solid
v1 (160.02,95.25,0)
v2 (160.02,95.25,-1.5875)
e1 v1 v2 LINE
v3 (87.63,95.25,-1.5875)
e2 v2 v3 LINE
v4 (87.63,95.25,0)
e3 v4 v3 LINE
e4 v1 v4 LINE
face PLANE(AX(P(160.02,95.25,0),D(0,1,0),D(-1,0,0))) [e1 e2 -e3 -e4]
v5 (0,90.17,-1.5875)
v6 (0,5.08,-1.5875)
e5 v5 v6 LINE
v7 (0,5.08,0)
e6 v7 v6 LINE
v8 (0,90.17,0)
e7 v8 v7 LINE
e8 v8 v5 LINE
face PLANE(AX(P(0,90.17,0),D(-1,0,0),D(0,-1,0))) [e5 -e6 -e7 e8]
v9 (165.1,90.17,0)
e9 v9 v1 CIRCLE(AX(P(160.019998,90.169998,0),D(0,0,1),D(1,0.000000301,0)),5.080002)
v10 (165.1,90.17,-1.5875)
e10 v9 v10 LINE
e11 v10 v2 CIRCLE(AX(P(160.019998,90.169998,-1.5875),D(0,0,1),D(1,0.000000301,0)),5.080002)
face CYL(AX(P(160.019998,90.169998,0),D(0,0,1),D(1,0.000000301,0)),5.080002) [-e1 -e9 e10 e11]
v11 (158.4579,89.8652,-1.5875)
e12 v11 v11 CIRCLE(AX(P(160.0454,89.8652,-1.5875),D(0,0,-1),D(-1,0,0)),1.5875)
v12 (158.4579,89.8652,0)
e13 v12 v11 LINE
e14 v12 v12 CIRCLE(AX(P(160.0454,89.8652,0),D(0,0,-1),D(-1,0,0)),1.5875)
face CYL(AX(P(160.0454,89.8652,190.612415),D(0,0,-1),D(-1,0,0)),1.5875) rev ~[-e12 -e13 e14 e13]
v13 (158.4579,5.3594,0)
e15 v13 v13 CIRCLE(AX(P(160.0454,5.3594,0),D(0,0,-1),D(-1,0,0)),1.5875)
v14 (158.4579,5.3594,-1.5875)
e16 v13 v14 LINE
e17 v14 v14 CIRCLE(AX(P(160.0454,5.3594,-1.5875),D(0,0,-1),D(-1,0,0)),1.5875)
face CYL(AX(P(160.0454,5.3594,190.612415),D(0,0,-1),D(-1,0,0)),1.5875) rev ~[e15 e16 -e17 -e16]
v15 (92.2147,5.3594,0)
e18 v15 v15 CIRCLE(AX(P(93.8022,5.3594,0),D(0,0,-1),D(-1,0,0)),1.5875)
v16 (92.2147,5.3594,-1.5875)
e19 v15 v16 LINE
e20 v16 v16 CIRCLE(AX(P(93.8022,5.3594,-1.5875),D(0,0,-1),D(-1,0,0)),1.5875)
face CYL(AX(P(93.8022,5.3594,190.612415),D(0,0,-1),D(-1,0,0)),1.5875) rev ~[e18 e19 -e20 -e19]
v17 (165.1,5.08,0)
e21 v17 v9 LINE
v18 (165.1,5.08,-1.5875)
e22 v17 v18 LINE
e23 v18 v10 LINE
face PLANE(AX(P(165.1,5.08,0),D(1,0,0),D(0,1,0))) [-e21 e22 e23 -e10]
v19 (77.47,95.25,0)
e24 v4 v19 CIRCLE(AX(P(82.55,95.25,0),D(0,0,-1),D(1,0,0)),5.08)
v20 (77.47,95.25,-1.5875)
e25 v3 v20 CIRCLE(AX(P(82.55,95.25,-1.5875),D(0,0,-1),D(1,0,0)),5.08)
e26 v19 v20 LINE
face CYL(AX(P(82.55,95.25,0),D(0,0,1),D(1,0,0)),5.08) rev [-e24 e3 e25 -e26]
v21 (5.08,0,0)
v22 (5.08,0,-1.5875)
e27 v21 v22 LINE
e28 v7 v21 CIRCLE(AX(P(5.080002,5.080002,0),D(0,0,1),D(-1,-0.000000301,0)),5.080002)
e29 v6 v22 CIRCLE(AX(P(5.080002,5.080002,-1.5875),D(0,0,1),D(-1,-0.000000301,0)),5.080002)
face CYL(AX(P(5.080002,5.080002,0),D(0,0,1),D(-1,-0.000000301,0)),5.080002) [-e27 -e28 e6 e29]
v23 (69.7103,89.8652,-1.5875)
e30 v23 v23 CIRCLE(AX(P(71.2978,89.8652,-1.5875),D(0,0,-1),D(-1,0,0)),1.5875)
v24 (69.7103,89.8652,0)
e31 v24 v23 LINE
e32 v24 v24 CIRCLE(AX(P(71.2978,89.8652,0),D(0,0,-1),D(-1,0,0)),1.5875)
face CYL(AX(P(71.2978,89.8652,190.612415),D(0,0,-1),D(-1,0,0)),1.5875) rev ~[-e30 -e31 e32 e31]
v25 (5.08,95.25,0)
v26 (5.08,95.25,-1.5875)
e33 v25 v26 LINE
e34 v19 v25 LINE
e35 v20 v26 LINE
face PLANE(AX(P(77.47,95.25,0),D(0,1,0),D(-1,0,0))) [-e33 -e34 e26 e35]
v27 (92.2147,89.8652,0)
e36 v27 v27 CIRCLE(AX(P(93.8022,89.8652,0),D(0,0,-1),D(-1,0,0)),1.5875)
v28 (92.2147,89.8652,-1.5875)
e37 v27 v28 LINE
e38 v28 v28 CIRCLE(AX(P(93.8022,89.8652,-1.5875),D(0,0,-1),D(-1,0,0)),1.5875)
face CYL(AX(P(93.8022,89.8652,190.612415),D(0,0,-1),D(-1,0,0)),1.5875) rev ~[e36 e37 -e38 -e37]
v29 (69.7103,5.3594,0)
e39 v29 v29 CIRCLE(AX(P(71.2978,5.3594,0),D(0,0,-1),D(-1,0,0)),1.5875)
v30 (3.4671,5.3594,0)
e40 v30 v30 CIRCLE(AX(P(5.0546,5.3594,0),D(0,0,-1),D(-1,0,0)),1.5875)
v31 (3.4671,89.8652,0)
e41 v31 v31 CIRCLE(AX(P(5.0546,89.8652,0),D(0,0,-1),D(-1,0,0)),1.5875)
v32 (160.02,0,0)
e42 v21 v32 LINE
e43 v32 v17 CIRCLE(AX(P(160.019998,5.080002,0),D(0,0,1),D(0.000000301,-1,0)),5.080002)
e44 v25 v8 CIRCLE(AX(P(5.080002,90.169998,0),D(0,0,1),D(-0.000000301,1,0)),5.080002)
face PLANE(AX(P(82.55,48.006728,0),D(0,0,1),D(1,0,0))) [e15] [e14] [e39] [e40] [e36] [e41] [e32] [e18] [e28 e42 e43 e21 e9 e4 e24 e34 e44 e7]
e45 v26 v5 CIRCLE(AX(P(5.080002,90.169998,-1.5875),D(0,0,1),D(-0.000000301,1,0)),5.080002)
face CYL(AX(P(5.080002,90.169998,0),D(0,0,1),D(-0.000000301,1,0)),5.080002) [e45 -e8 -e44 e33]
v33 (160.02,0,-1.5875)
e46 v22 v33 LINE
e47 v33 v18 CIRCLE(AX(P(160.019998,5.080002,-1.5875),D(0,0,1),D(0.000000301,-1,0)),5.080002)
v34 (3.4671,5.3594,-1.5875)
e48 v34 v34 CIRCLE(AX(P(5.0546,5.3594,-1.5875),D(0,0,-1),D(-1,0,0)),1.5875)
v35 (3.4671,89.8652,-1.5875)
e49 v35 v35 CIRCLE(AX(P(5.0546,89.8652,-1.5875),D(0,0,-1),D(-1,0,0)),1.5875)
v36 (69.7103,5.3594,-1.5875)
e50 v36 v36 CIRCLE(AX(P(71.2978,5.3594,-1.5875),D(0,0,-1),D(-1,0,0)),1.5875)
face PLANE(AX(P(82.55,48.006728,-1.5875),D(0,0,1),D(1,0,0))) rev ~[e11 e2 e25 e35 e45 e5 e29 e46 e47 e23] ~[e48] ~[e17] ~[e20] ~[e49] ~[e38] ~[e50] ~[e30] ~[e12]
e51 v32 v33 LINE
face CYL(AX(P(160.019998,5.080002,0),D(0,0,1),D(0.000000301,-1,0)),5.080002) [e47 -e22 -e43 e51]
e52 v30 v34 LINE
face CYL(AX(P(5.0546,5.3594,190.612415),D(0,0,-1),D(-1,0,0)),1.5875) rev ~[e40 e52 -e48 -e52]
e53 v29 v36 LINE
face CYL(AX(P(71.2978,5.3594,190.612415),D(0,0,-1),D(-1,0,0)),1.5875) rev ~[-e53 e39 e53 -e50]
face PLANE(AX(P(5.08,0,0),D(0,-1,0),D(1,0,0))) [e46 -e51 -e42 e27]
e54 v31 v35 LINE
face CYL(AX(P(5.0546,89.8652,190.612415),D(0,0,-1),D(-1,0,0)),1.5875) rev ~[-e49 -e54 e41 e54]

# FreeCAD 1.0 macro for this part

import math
import FreeCAD as App
import Part
import Sketcher
from FreeCAD import Vector
Q = App.Units.Quantity

doc = App.newDocument("Part")
body = doc.addObject("PartDesign::Body", "Body")

# Sketch on XY plane
sketch1 = doc.addObject("Sketcher::SketchObject", "Sketch")
body.addObject(sketch1)
sketch1.AttachmentSupport = (doc.XY_Plane, [""])
sketch1.MapMode = "FlatFace"
sketch1.addGeometry([
    Part.ArcOfCircle(Part.Circle(Vector(5.080002, 5.080002, 0), Vector(0, 0, 1), 5.080002), math.radians(-179.999983), math.radians(-90.000017)),  # 0
    Part.LineSegment(Vector(5.08, 0, 0), Vector(160.02, 0, 0)),  # 1
    Part.ArcOfCircle(Part.Circle(Vector(160.019998, 5.080002, 0), Vector(0, 0, 1), 5.080002), math.radians(-89.999983), math.radians(-0.000017)),  # 2
    Part.LineSegment(Vector(165.1, 5.08, 0), Vector(165.1, 90.17, 0)),  # 3
    Part.ArcOfCircle(Part.Circle(Vector(160.019998, 90.169998, 0), Vector(0, 0, 1), 5.080002), math.radians(0.000017), math.radians(89.999983)),  # 4
    Part.LineSegment(Vector(160.02, 95.25, 0), Vector(87.63, 95.25, 0)),  # 5
    Part.ArcOfCircle(Part.Circle(Vector(82.55, 95.25, 0), Vector(0, 0, 1), 5.08), math.radians(180), math.radians(360)),  # 6
    Part.LineSegment(Vector(77.47, 95.25, 0), Vector(5.08, 95.25, 0)),  # 7
    Part.ArcOfCircle(Part.Circle(Vector(5.080002, 90.169998, 0), Vector(0, 0, 1), 5.080002), math.radians(90.000017), math.radians(179.999983)),  # 8
    Part.LineSegment(Vector(0, 90.17, 0), Vector(0, 5.08, 0)),  # 9
], False)
sketch1.addConstraint([
    Sketcher.Constraint("Tangent", 0, 2, 1, 1),
    Sketcher.Constraint("Tangent", 1, 2, 2, 1),
    Sketcher.Constraint("Tangent", 2, 2, 3, 1),
    Sketcher.Constraint("Tangent", 3, 2, 4, 1),
    Sketcher.Constraint("Tangent", 4, 2, 5, 1),
    Sketcher.Constraint("Coincident", 5, 2, 6, 2),
    Sketcher.Constraint("Coincident", 6, 1, 7, 1),
    Sketcher.Constraint("Tangent", 7, 2, 8, 1),
    Sketcher.Constraint("Tangent", 8, 2, 9, 1),
    Sketcher.Constraint("Tangent", 9, 2, 0, 1),
    Sketcher.Constraint("Horizontal", 1),
    Sketcher.Constraint("Vertical", 3),
    Sketcher.Constraint("Horizontal", 5),
    Sketcher.Constraint("Horizontal", 7),
    Sketcher.Constraint("Vertical", 9),
    Sketcher.Constraint("Equal", 0, 2),
    Sketcher.Constraint("Equal", 2, 4),
    Sketcher.Constraint("Equal", 4, 6),
    Sketcher.Constraint("Equal", 6, 8),
    Sketcher.Constraint("PointOnObject", 0, 2, -1),
    Sketcher.Constraint("PointOnObject", 8, 2, -2),
    Sketcher.Constraint("Horizontal", 4, 3, 8, 3),
    Sketcher.Constraint("Horizontal", 6, 3, 4, 2),
    Sketcher.Constraint("Equal", 5, 7),
    Sketcher.Constraint("Radius", 0, Q("0.2000001 in")),
    Sketcher.Constraint("DistanceX", 1, 1, 1, 2, Q("6.1 in")),
    Sketcher.Constraint("DistanceY", 3, 1, 3, 2, Q("3.35 in")),
])
pad1 = doc.addObject("PartDesign::Pad", "Pad")
body.addObject(pad1)
pad1.Profile = sketch1
pad1.Length = Q("0.0625 in")
pad1.Reversed = True

# Sketch on XY plane
sketch2 = doc.addObject("Sketcher::SketchObject", "Sketch001")
body.addObject(sketch2)
sketch2.AttachmentSupport = (doc.XY_Plane, [""])
sketch2.MapMode = "FlatFace"
sketch2.addGeometry([
    Part.Circle(Vector(5.0546, 5.3594, 0), Vector(0, 0, 1), 1.5875),  # 0
    Part.Circle(Vector(71.2978, 5.3594, 0), Vector(0, 0, 1), 1.5875),  # 1
    Part.Circle(Vector(93.8022, 5.3594, 0), Vector(0, 0, 1), 1.5875),  # 2
    Part.Circle(Vector(160.0454, 5.3594, 0), Vector(0, 0, 1), 1.5875),  # 3
    Part.Circle(Vector(160.0454, 89.8652, 0), Vector(0, 0, 1), 1.5875),  # 4
    Part.Circle(Vector(93.8022, 89.8652, 0), Vector(0, 0, 1), 1.5875),  # 5
    Part.Circle(Vector(71.2978, 89.8652, 0), Vector(0, 0, 1), 1.5875),  # 6
    Part.Circle(Vector(5.0546, 89.8652, 0), Vector(0, 0, 1), 1.5875),  # 7
], False)
sketch2.addConstraint([
    Sketcher.Constraint("Equal", 0, 1),
    Sketcher.Constraint("Equal", 1, 2),
    Sketcher.Constraint("Equal", 2, 3),
    Sketcher.Constraint("Equal", 3, 4),
    Sketcher.Constraint("Equal", 4, 5),
    Sketcher.Constraint("Equal", 5, 6),
    Sketcher.Constraint("Equal", 6, 7),
    Sketcher.Constraint("Horizontal", 0, 3, 1, 3),
    Sketcher.Constraint("Horizontal", 1, 3, 2, 3),
    Sketcher.Constraint("Horizontal", 2, 3, 3, 3),
    Sketcher.Constraint("Horizontal", 4, 3, 5, 3),
    Sketcher.Constraint("Horizontal", 5, 3, 6, 3),
    Sketcher.Constraint("Horizontal", 6, 3, 7, 3),
    Sketcher.Constraint("Vertical", 3, 3, 4, 3),
    Sketcher.Constraint("Vertical", 2, 3, 5, 3),
    Sketcher.Constraint("Vertical", 1, 3, 6, 3),
    Sketcher.Constraint("Vertical", 0, 3, 7, 3),
    Sketcher.Constraint("Diameter", 0, Q("0.125 in")),
    Sketcher.Constraint("DistanceX", -1, 1, 0, 3, Q("0.199 in")),
    Sketcher.Constraint("DistanceY", -1, 1, 0, 3, Q("0.211 in")),
    Sketcher.Constraint("DistanceX", -1, 1, 1, 3, Q("2.807 in")),
    Sketcher.Constraint("DistanceX", -1, 1, 2, 3, Q("3.693 in")),
    Sketcher.Constraint("DistanceX", -1, 1, 3, 3, Q("6.301 in")),
    Sketcher.Constraint("DistanceY", -1, 1, 4, 3, Q("3.538 in")),
])
doc.recompute()
hole = doc.addObject("PartDesign::Hole", "Hole")
body.addObject(hole)
hole.Profile = sketch2
hole.ThreadType = "None"
hole.Diameter = Q("0.125 in")
hole.DepthType = "ThroughAll"

doc.recompute()
